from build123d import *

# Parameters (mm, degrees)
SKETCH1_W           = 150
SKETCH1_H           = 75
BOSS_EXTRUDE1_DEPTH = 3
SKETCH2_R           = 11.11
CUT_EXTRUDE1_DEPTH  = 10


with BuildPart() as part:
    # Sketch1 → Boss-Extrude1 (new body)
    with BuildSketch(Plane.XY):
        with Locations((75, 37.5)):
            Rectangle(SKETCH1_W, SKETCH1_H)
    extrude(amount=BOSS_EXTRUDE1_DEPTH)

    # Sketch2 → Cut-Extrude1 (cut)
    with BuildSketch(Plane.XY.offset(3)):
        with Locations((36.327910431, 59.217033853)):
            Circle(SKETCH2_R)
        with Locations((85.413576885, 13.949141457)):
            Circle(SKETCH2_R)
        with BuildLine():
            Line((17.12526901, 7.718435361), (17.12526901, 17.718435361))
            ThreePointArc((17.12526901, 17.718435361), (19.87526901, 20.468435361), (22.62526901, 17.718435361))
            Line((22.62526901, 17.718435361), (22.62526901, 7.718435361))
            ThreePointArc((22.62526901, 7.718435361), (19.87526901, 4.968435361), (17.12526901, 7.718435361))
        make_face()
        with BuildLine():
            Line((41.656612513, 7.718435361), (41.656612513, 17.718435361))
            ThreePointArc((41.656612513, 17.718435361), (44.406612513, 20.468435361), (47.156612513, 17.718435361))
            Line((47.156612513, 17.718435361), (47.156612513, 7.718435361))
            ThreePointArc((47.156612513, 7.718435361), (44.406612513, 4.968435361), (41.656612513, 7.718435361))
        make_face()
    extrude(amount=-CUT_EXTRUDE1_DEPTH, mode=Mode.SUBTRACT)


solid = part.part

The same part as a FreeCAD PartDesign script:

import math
import FreeCAD as App
import Part
import Sketcher

V = App.Vector
Q = App.Units.Quantity


def add_polygon(sketch, points):
    """Adds a closed chain of lines whose ends are joined by coincident constraints."""
    first, n = sketch.GeometryCount, len(points)
    for a, b in zip(points, points[1:] + points[:1]):
        sketch.addGeometry(Part.LineSegment(App.Vector(*a, 0), App.Vector(*b, 0)), False)
    for i in range(n):
        sketch.addConstraint(Sketcher.Constraint("Coincident", first + i, 2, first + (i + 1) % n, 1))

doc = App.newDocument("Part")
body = doc.addObject("PartDesign::Body", "Body")

sketch1 = body.newObject("Sketcher::SketchObject", "Sketch")
sketch1.AttachmentSupport = (doc.getObject("XY_Plane"), [""])
sketch1.MapMode = "FlatFace"
add_polygon(sketch1, [(0, 75), (0, 0), (150, 0), (150, 75)])
sketch1.addConstraint([
    Sketcher.Constraint("Vertical", 0),
    Sketcher.Constraint("Horizontal", 1),
    Sketcher.Constraint("Vertical", 2),
    Sketcher.Constraint("Horizontal", 3),
    Sketcher.Constraint("Coincident", 0, 2, -1, 1),
    Sketcher.Constraint("DistanceX", 1, 1, 1, 2, Q("150 mm")),
    Sketcher.Constraint("DistanceY", 0, 2, 0, 1, Q("75 mm")),
])
pad1 = body.newObject("PartDesign::Pad", "Pad")
pad1.Profile = sketch1
pad1.Length = 3

sketch2 = body.newObject("Sketcher::SketchObject", "Sketch001")
sketch2.AttachmentSupport = (doc.getObject("XY_Plane"), [""])
sketch2.MapMode = "FlatFace"
sketch2.AttachmentOffset = App.Placement(V(0, 0, 3), App.Rotation())
sketch2.addGeometry([
    Part.Circle(V(36.32791, 59.217034, 0), V(0, 0, 1), 11.11),
    Part.Circle(V(85.413577, 13.949141, 0), V(0, 0, 1), 11.11),
    Part.LineSegment(V(17.125269, 17.718435, 0), V(17.125269, 7.718435, 0)),
    Part.ArcOfCircle(Part.Circle(V(19.875269, 7.718435, 0), V(0, 0, 1), 2.75), math.radians(180), math.radians(360)),
    Part.LineSegment(V(22.625269, 7.718435, 0), V(22.625269, 17.718435, 0)),
    Part.ArcOfCircle(Part.Circle(V(19.875269, 17.718435, 0), V(0, 0, 1), 2.75), math.radians(0), math.radians(180)),
    Part.LineSegment(V(41.656613, 17.718435, 0), V(41.656613, 7.718435, 0)),
    Part.ArcOfCircle(Part.Circle(V(44.406613, 7.718435, 0), V(0, 0, 1), 2.75), math.radians(180), math.radians(360)),
    Part.LineSegment(V(47.156613, 7.718435, 0), V(47.156613, 17.718435, 0)),
    Part.ArcOfCircle(Part.Circle(V(44.406613, 17.718435, 0), V(0, 0, 1), 2.75), math.radians(0), math.radians(180)),
], False)
sketch2.addConstraint([
    Sketcher.Constraint("Tangent", 2, 2, 3, 1),
    Sketcher.Constraint("Tangent", 3, 2, 4, 1),
    Sketcher.Constraint("Tangent", 4, 2, 5, 1),
    Sketcher.Constraint("Tangent", 5, 2, 2, 1),
    Sketcher.Constraint("Tangent", 6, 2, 7, 1),
    Sketcher.Constraint("Tangent", 7, 2, 8, 1),
    Sketcher.Constraint("Tangent", 8, 2, 9, 1),
    Sketcher.Constraint("Tangent", 9, 2, 6, 1),
    Sketcher.Constraint("Vertical", 2),
    Sketcher.Constraint("Vertical", 4),
    Sketcher.Constraint("Vertical", 6),
    Sketcher.Constraint("Vertical", 8),
    Sketcher.Constraint("Equal", 0, 1),
    Sketcher.Constraint("Equal", 5, 7),
    Sketcher.Constraint("Horizontal", 3, 3, 7, 3),
    Sketcher.Constraint("Horizontal", 5, 3, 9, 3),
    Sketcher.Constraint("Diameter", 0, Q("22.22 mm")),
    Sketcher.Constraint("DistanceY", 2, 2, 2, 1, Q("10 mm")),
    Sketcher.Constraint("Radius", 3, Q("2.75 mm")),
    Sketcher.Constraint("DistanceY", 3, 3, 0, 3, Q("51.498598 mm")),
    Sketcher.Constraint("DistanceX", -1, 1, 0, 3, Q("36.32791 mm")),
    Sketcher.Constraint("DistanceY", -1, 1, 1, 3, Q("13.949141 mm")),
    Sketcher.Constraint("DistanceX", -1, 1, 3, 3, Q("19.875269 mm")),
    Sketcher.Constraint("DistanceY", -1, 1, 0, 3, Q("59.217034 mm")),
    Sketcher.Constraint("DistanceX", -1, 1, 1, 3, Q("85.413577 mm")),
    Sketcher.Constraint("DistanceX", -1, 1, 7, 3, Q("44.406613 mm")),
])
pocket1 = body.newObject("PartDesign::Pocket", "Pocket")
pocket1.Profile = sketch2
pocket1.Length = 10

doc.recompute()
